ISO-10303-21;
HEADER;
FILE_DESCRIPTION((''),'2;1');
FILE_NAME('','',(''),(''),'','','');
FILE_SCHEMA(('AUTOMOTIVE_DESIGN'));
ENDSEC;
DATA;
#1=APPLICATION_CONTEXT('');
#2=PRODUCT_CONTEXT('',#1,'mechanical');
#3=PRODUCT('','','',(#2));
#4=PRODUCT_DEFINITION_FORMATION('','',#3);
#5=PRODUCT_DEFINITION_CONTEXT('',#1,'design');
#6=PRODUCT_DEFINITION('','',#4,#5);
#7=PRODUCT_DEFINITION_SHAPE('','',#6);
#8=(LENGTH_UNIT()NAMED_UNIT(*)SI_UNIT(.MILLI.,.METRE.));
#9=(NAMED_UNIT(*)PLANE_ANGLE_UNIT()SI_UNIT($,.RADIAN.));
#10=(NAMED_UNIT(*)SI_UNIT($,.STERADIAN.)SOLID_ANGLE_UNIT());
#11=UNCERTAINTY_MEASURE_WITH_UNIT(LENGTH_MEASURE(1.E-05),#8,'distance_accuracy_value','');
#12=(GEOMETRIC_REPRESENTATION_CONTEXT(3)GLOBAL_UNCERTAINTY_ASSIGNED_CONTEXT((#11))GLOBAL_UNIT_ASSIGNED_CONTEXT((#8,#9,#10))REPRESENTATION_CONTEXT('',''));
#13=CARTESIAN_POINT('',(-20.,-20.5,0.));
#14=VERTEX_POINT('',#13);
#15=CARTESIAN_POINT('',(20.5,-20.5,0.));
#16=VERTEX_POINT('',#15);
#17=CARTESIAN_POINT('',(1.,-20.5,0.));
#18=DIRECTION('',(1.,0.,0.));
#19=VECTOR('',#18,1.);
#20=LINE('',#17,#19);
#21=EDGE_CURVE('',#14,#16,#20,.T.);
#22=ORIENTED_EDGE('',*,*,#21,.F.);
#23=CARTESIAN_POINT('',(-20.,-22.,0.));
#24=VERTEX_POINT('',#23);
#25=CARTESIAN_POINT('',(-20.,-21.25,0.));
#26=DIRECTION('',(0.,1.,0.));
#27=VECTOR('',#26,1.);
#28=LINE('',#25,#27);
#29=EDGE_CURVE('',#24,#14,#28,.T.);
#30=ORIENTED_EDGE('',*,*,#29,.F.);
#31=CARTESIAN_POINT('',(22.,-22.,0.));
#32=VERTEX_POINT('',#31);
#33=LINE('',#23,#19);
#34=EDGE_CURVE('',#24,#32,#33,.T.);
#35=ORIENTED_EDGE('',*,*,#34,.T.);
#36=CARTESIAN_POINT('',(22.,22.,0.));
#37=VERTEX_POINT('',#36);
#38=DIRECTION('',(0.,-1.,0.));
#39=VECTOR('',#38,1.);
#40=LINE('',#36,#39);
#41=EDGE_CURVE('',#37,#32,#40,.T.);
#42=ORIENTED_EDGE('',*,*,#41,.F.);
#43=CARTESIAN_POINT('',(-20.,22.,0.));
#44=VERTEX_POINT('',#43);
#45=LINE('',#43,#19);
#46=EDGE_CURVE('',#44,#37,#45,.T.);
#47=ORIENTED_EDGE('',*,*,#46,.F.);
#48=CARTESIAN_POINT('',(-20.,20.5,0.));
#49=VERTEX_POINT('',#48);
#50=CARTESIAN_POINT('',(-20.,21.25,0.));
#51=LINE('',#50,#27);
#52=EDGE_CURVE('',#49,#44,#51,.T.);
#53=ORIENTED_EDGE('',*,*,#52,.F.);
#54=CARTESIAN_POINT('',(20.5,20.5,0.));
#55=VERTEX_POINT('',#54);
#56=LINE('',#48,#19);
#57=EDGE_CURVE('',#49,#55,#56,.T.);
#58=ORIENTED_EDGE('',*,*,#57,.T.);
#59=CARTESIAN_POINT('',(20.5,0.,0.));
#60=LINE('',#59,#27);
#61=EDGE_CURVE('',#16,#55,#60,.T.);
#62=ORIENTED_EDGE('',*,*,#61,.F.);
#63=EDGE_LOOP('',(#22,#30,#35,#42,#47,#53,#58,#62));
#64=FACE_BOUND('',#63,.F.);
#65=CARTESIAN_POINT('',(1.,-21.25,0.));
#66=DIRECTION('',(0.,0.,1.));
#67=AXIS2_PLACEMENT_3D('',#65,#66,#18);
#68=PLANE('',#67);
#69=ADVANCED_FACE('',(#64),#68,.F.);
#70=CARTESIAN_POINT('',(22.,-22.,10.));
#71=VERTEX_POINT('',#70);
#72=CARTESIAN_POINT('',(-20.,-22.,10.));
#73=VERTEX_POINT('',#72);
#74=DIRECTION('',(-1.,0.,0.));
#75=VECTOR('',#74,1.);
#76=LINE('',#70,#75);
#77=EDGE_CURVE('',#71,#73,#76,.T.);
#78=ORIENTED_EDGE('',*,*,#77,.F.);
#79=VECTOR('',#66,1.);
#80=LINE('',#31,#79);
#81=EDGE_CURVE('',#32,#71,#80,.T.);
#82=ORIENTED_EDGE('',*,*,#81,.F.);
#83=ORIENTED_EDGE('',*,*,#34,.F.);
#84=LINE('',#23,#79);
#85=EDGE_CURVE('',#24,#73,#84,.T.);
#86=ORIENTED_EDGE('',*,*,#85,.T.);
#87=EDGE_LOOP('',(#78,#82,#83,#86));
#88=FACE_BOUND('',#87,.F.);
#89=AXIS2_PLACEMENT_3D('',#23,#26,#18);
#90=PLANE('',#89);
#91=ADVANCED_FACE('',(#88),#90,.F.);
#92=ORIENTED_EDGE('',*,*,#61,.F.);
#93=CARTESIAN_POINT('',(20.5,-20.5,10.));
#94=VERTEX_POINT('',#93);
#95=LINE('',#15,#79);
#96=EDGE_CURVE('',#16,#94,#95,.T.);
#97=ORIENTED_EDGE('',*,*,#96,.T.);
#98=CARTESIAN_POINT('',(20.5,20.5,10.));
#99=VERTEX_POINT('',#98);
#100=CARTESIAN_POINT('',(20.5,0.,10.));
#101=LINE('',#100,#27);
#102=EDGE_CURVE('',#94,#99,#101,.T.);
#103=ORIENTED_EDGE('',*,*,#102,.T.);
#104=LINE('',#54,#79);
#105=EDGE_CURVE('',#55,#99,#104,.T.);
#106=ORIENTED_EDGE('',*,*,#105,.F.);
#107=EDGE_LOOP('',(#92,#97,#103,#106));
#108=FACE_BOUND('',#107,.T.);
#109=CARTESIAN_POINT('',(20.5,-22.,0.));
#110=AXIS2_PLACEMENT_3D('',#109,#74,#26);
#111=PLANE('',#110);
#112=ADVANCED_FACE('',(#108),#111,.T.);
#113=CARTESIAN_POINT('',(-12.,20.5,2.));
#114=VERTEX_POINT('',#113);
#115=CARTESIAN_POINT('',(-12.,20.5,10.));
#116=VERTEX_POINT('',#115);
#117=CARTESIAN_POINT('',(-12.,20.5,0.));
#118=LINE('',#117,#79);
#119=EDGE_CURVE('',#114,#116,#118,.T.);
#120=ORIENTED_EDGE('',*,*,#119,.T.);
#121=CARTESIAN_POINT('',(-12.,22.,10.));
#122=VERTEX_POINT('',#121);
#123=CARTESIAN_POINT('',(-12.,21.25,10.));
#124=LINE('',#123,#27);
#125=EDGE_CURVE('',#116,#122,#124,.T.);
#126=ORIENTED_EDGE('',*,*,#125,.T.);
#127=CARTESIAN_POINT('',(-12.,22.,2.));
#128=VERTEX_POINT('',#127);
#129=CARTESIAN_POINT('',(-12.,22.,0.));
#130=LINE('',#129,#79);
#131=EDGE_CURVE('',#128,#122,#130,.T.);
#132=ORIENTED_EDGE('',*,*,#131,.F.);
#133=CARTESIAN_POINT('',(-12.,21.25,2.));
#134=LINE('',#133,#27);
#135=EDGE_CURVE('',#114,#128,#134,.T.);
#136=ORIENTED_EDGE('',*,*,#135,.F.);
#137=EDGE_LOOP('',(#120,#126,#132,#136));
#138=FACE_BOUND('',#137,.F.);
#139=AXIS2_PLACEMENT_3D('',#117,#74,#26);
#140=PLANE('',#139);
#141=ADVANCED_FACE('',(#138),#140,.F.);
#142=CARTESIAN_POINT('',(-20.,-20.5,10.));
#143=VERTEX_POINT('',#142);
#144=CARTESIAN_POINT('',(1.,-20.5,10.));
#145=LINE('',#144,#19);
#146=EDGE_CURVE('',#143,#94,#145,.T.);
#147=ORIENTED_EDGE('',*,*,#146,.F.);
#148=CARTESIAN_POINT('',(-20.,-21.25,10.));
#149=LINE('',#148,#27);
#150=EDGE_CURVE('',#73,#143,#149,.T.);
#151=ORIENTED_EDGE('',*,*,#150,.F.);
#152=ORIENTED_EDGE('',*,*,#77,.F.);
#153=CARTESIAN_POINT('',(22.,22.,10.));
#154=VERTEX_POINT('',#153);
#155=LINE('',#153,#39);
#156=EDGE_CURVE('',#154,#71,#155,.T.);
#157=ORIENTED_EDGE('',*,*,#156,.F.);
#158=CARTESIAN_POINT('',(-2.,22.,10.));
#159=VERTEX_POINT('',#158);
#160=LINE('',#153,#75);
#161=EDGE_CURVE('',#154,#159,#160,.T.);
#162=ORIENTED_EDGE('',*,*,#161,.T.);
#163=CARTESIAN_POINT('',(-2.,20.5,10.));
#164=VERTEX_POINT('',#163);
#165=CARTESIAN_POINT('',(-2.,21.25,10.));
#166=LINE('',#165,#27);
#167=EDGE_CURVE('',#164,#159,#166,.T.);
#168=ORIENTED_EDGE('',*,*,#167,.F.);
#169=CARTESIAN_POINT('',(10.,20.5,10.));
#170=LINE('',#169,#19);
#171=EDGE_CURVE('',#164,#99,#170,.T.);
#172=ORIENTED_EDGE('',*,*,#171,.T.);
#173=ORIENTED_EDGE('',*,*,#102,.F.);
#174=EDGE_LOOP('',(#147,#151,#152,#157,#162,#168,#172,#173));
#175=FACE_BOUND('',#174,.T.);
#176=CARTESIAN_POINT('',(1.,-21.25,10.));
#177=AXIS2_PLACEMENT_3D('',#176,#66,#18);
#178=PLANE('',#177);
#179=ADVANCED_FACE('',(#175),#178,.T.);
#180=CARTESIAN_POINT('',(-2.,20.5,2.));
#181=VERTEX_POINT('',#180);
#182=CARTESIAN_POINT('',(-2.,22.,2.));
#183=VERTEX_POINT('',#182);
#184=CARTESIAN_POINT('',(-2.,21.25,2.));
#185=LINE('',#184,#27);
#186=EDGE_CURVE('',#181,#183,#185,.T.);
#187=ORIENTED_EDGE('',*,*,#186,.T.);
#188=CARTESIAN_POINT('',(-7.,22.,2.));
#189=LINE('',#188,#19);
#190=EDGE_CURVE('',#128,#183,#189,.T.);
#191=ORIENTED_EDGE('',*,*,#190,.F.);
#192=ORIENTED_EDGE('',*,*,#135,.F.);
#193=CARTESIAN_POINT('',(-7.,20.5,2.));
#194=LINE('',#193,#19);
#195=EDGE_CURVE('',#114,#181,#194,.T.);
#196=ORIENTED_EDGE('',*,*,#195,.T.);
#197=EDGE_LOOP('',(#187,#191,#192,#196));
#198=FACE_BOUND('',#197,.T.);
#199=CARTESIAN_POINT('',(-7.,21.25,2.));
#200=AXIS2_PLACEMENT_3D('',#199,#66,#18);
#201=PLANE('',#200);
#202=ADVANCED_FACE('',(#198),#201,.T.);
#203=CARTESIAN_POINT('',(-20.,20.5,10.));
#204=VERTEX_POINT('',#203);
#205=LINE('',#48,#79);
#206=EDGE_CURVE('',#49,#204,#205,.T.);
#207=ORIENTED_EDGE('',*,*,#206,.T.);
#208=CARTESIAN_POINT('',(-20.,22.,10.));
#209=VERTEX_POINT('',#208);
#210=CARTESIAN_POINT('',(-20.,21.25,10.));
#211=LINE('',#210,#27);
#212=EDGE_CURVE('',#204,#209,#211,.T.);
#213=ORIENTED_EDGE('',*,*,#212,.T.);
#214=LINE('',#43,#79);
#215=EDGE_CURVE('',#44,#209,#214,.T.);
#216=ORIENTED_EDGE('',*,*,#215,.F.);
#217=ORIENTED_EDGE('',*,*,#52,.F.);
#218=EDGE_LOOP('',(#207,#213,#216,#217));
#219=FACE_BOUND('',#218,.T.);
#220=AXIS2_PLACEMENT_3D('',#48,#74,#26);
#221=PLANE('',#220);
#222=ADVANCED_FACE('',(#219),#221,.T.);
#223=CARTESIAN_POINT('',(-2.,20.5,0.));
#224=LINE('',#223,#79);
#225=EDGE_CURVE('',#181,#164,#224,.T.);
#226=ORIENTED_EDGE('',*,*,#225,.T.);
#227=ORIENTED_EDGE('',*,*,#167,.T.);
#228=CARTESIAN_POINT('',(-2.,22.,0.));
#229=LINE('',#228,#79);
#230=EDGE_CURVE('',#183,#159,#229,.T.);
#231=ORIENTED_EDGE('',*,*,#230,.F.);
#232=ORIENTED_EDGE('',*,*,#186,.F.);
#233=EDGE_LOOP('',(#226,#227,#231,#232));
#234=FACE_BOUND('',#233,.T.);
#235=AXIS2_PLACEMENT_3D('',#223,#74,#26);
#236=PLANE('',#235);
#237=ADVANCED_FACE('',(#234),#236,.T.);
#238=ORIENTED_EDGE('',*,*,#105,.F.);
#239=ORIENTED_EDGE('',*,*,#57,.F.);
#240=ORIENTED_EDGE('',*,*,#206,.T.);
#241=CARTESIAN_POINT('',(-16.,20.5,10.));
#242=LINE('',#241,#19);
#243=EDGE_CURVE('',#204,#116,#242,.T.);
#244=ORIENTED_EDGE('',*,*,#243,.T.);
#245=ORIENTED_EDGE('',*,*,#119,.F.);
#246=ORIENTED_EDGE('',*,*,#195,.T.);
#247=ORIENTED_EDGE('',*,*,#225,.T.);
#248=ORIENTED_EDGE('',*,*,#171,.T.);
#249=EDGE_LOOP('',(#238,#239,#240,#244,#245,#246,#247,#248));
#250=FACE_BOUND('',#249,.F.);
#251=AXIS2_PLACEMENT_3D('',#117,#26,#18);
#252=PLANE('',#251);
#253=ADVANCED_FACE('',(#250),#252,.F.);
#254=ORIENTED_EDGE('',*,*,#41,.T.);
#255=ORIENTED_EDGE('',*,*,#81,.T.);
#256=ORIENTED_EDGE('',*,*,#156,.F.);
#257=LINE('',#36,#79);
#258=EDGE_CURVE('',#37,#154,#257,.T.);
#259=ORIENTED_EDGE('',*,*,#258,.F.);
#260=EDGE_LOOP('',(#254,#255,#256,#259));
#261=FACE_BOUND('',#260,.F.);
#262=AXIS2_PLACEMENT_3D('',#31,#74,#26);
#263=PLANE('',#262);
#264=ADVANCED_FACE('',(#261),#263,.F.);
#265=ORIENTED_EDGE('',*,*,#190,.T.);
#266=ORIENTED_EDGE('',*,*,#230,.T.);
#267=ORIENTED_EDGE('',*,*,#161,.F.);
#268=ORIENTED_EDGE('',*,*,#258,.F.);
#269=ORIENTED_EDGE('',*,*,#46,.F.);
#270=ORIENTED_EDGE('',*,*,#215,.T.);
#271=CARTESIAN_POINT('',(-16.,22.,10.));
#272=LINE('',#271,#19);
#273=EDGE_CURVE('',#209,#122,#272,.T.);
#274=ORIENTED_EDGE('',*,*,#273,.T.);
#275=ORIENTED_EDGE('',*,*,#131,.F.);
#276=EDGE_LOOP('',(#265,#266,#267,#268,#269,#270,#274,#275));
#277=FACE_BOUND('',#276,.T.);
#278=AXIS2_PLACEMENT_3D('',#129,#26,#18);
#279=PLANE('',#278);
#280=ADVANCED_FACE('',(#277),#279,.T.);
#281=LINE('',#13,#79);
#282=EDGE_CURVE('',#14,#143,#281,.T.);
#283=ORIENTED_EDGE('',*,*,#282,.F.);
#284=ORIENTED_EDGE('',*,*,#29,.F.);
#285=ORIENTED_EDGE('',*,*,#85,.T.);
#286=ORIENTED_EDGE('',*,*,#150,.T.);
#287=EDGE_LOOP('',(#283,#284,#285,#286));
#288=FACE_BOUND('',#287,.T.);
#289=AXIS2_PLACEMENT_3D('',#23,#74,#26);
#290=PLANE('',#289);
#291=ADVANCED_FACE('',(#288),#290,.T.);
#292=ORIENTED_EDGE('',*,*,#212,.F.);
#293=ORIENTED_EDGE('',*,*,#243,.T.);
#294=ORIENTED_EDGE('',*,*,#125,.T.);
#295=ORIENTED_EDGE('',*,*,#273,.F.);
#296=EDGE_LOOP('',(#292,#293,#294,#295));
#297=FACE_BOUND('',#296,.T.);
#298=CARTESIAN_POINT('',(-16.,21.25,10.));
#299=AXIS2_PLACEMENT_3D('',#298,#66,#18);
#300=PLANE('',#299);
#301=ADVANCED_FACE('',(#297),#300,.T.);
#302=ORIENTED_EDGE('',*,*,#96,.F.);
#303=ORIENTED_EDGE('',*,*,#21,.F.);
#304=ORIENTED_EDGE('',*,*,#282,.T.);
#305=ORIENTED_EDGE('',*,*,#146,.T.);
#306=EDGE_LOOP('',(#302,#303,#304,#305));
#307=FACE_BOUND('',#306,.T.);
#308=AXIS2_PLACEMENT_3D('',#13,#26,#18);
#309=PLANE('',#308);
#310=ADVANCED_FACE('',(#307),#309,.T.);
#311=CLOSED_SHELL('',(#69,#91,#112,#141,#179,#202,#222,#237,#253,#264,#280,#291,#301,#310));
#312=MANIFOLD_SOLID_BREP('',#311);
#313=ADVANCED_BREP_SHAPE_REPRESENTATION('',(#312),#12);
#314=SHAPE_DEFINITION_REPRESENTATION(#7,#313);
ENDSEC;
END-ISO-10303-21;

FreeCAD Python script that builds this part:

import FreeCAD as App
import Part
import Sketcher
from FreeCAD import Vector
Q = App.Units.Quantity


def add_polygon(sketch, points):
    """Adds a closed chain of lines whose ends are joined by coincident constraints."""
    first, n = sketch.GeometryCount, len(points)
    for a, b in zip(points, points[1:] + points[:1]):
        sketch.addGeometry(Part.LineSegment(App.Vector(*a, 0), App.Vector(*b, 0)), False)
    for i in range(n):
        sketch.addConstraint(Sketcher.Constraint("Coincident", first + i, 2, first + (i + 1) % n, 1))

doc = App.newDocument("Part")
body = doc.addObject("PartDesign::Body", "Body")

# Sketch on XY plane
sketch1 = body.newObject("Sketcher::SketchObject", "Sketch")
sketch1.AttachmentSupport = (doc.getObject("XY_Plane"), [""])
sketch1.MapMode = "FlatFace"
add_polygon(sketch1, [(-2, 22), (-2, 20.5), (22, 20.5), (22, 22)])  # lines 0-3
sketch1.addConstraint([
    Sketcher.Constraint("Vertical", 0),
    Sketcher.Constraint("Horizontal", 1),
    Sketcher.Constraint("Vertical", 2),
    Sketcher.Constraint("Horizontal", 3),
    Sketcher.Constraint("DistanceX", 1, 1, 1, 2, Q("24 mm")),
    Sketcher.Constraint("DistanceY", 0, 2, 0, 1, Q("1.5 mm")),
    Sketcher.Constraint("DistanceX", 0, 2, -1, 1, Q("2 mm")),
    Sketcher.Constraint("DistanceY", -1, 1, 2, 2, Q("22 mm")),
])
pad1 = body.newObject("PartDesign::Pad", "Pad")
pad1.Profile = sketch1
pad1.Length = 10
body2 = doc.addObject("PartDesign::Body", "Body001")

# Sketch on XY plane
sketch2 = body2.newObject("Sketcher::SketchObject", "Sketch001")
sketch2.AttachmentSupport = (doc.getObject("XY_Plane001"), [""])
sketch2.MapMode = "FlatFace"
add_polygon(sketch2, [(-12, 22), (-12, 20.5), (-2, 20.5), (-2, 22)])  # lines 0-3
sketch2.addConstraint([
    Sketcher.Constraint("Vertical", 0),
    Sketcher.Constraint("Horizontal", 1),
    Sketcher.Constraint("Vertical", 2),
    Sketcher.Constraint("Horizontal", 3),
    Sketcher.Constraint("DistanceX", 1, 1, 1, 2, Q("10 mm")),
    Sketcher.Constraint("DistanceY", 0, 2, 0, 1, Q("1.5 mm")),
    Sketcher.Constraint("DistanceX", 0, 2, -1, 1, Q("12 mm")),
    Sketcher.Constraint("DistanceY", -1, 1, 2, 2, Q("22 mm")),
])
pad2 = body2.newObject("PartDesign::Pad", "Pad001")
pad2.Profile = sketch2
pad2.Length = 2
body3 = doc.addObject("PartDesign::Body", "Body002")

# Sketch on XY plane
sketch3 = body3.newObject("Sketcher::SketchObject", "Sketch002")
sketch3.AttachmentSupport = (doc.getObject("XY_Plane002"), [""])
sketch3.MapMode = "FlatFace"
add_polygon(sketch3, [(-20, -20.5), (-20, -22), (22, -22), (22, -20.5)])  # lines 0-3
sketch3.addConstraint([
    Sketcher.Constraint("Vertical", 0),
    Sketcher.Constraint("Horizontal", 1),
    Sketcher.Constraint("Vertical", 2),
    Sketcher.Constraint("Horizontal", 3),
    Sketcher.Constraint("DistanceX", 1, 1, 1, 2, Q("42 mm")),
    Sketcher.Constraint("DistanceY", 0, 2, 0, 1, Q("1.5 mm")),
    Sketcher.Constraint("DistanceX", 0, 2, -1, 1, Q("20 mm")),
    Sketcher.Constraint("DistanceY", 0, 2, -1, 1, Q("22 mm")),
])
pad3 = body3.newObject("PartDesign::Pad", "Pad002")
pad3.Profile = sketch3
pad3.Length = 10
body4 = doc.addObject("PartDesign::Body", "Body003")

# Sketch on XY plane
sketch4 = body4.newObject("Sketcher::SketchObject", "Sketch003")
sketch4.AttachmentSupport = (doc.getObject("XY_Plane003"), [""])
sketch4.MapMode = "FlatFace"
add_polygon(sketch4, [(20.5, 22), (20.5, -22), (22, -22), (22, 22)])  # lines 0-3
sketch4.addConstraint([
    Sketcher.Constraint("Vertical", 0),
    Sketcher.Constraint("Horizontal", 1),
    Sketcher.Constraint("Vertical", 2),
    Sketcher.Constraint("Horizontal", 3),
    Sketcher.Constraint("DistanceY", 0, 2, 0, 1, Q("44 mm")),
    Sketcher.Constraint("DistanceX", 1, 1, 1, 2, Q("1.5 mm")),
    Sketcher.Constraint("DistanceY", 0, 2, -1, 1, Q("22 mm")),
    Sketcher.Constraint("DistanceX", -1, 1, 1, 2, Q("22 mm")),
])
pad4 = body4.newObject("PartDesign::Pad", "Pad003")
pad4.Profile = sketch4
pad4.Length = 10
body5 = doc.addObject("PartDesign::Body", "Body004")
body5.AllowCompound = True

# Sketch on XY plane
sketch5 = body5.newObject("Sketcher::SketchObject", "Sketch004")
sketch5.AttachmentSupport = (doc.getObject("XY_Plane004"), [""])
sketch5.MapMode = "FlatFace"
add_polygon(sketch5, [(-20, 22), (-20, 20.5), (-12, 20.5), (-12, 22)])  # lines 0-3
sketch5.addConstraint([
    Sketcher.Constraint("Vertical", 0),
    Sketcher.Constraint("Horizontal", 1),
    Sketcher.Constraint("Vertical", 2),
    Sketcher.Constraint("Horizontal", 3),
    Sketcher.Constraint("DistanceX", 1, 1, 1, 2, Q("8 mm")),
    Sketcher.Constraint("DistanceY", 0, 2, 0, 1, Q("1.5 mm")),
    Sketcher.Constraint("DistanceX", 0, 2, -1, 1, Q("20 mm")),
    Sketcher.Constraint("DistanceY", -1, 1, 2, 2, Q("22 mm")),
])
pad5 = body5.newObject("PartDesign::Pad", "Pad004")
pad5.Profile = sketch5
pad5.Length = 10
doc.recompute()

boolean = body5.newObject("PartDesign::Boolean", "Boolean")
boolean.Type = "Fuse"
boolean.addObjects([body])
doc.recompute()

boolean2 = body5.newObject("PartDesign::Boolean", "Boolean001")
boolean2.Type = "Fuse"
boolean2.addObjects([body2])
doc.recompute()

boolean3 = body5.newObject("PartDesign::Boolean", "Boolean002")
boolean3.Type = "Fuse"
boolean3.addObjects([body3])
doc.recompute()

boolean4 = body5.newObject("PartDesign::Boolean", "Boolean003")
boolean4.Type = "Fuse"
boolean4.addObjects([body4])

doc.recompute()
